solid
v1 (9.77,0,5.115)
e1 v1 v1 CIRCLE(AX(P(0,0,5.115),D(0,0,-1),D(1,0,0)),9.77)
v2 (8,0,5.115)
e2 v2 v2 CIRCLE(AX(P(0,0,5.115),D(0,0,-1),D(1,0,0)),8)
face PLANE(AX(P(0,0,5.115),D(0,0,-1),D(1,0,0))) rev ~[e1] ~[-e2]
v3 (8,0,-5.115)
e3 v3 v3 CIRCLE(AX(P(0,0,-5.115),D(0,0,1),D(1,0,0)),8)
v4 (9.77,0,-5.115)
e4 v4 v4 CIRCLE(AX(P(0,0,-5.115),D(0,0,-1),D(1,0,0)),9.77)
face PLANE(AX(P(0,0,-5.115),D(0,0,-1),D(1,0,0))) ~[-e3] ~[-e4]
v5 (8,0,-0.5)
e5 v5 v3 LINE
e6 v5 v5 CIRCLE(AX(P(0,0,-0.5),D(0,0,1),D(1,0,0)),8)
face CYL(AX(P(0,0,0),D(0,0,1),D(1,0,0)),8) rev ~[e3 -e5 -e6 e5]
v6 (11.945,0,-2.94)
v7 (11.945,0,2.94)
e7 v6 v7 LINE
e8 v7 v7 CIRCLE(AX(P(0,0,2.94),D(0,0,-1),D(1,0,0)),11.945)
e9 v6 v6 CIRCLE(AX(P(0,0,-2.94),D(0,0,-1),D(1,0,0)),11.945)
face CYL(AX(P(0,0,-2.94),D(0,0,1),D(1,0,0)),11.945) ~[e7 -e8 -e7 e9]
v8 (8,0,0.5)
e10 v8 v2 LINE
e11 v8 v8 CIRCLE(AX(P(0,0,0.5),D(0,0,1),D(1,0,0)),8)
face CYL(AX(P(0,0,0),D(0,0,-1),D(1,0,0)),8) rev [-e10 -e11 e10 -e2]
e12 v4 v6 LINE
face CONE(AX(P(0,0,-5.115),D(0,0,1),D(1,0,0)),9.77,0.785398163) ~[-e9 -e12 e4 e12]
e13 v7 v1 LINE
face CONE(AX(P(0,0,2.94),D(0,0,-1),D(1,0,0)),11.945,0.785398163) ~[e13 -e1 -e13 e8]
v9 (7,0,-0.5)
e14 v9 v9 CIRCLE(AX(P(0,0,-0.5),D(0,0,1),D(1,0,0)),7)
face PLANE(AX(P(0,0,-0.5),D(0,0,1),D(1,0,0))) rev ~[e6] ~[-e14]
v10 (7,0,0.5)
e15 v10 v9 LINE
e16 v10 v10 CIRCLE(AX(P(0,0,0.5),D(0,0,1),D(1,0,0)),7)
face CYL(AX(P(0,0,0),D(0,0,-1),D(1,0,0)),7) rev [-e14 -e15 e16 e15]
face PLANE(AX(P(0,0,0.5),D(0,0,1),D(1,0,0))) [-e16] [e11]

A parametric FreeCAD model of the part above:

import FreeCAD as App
import Part
import Sketcher

V = App.Vector


def add_polygon(sketch, points):
    """Adds a closed chain of lines whose ends are joined by coincident constraints."""
    first, n = sketch.GeometryCount, len(points)
    for a, b in zip(points, points[1:] + points[:1]):
        sketch.addGeometry(Part.LineSegment(App.Vector(*a, 0), App.Vector(*b, 0)), False)
    for i in range(n):
        sketch.addConstraint(Sketcher.Constraint("Coincident", first + i, 2, first + (i + 1) % n, 1))

doc = App.newDocument("Part")
body = doc.addObject("PartDesign::Body", "Body")

sketch1 = body.newObject("Sketcher::SketchObject", "Sketch")
sketch1.AttachmentSupport = (doc.getObject("XZ_Plane"), [""])
sketch1.MapMode = "FlatFace"
add_polygon(sketch1, [(9.8, 5.1), (0, 5.1), (0, -5.1), (9.8, -5.1), (11.9, -2.9), (11.9, 2.9)])
sketch1.addConstraint(Sketcher.Constraint("Horizontal", 0))
sketch1.addConstraint(Sketcher.Constraint("Vertical", 1))
sketch1.addConstraint(Sketcher.Constraint("Horizontal", 2))
sketch1.addConstraint(Sketcher.Constraint("Vertical", 4))
sketch1.addConstraint(Sketcher.Constraint("Symmetric", 0, 2, 1, 2, -1, 1))
sketch1.addConstraint(Sketcher.Constraint("Perpendicular", 3, 5))
sketch1.addConstraint(Sketcher.Constraint("Vertical", 2, 2, 5, 2))
sketch1.addConstraint(Sketcher.Constraint("Equal", 3, 5))
sketch1.addConstraint(Sketcher.Constraint("DistanceX", 0, 2, 0, 1, 9.77))
sketch1.addConstraint(Sketcher.Constraint("DistanceY", 1, 2, 1, 1, 10.23))
sketch1.addConstraint(Sketcher.Constraint("DistanceY", 4, 1, 4, 2, 5.88))
revolution = body.newObject("PartDesign::Revolution", "Revolution")
revolution.Profile = sketch1
revolution.ReferenceAxis = (sketch1, ["V_Axis"])
revolution.Angle = 360

sketch2 = body.newObject("Sketcher::SketchObject", "Sketch001")
sketch2.AttachmentSupport = (doc.getObject("XY_Plane"), [""])
sketch2.MapMode = "FlatFace"
sketch2.addGeometry(Part.Circle(V(0, 0, 0), V(0, 0, 1), 8), False)
sketch2.addConstraint(Sketcher.Constraint("Coincident", 0, 3, -1, 1))
sketch2.addConstraint(Sketcher.Constraint("Diameter", 0, 16.0))
pocket1 = body.newObject("PartDesign::Pocket", "Pocket")
pocket1.Profile = sketch2
pocket1.Type = "ThroughAll"
pocket1.Midplane = True

sketch3 = body.newObject("Sketcher::SketchObject", "Sketch002")
sketch3.AttachmentSupport = (doc.getObject("XY_Plane"), [""])
sketch3.MapMode = "FlatFace"
sketch3.addGeometry(Part.Circle(V(0, 0, 0), V(0, 0, 1), 8), False)
sketch3.addGeometry(Part.Circle(V(0, 0, 0), V(0, 0, 1), 7), False)
sketch3.addConstraint(Sketcher.Constraint("Coincident", 0, 3, -1, 1))
sketch3.addConstraint(Sketcher.Constraint("Coincident", 1, 3, -1, 1))
sketch3.addConstraint(Sketcher.Constraint("Diameter", 0, 16.0))
sketch3.addConstraint(Sketcher.Constraint("Diameter", 1, 14.0))
pad1 = body.newObject("PartDesign::Pad", "Pad")
pad1.Profile = sketch3
pad1.Length = 1
pad1.Midplane = True

doc.recompute()
